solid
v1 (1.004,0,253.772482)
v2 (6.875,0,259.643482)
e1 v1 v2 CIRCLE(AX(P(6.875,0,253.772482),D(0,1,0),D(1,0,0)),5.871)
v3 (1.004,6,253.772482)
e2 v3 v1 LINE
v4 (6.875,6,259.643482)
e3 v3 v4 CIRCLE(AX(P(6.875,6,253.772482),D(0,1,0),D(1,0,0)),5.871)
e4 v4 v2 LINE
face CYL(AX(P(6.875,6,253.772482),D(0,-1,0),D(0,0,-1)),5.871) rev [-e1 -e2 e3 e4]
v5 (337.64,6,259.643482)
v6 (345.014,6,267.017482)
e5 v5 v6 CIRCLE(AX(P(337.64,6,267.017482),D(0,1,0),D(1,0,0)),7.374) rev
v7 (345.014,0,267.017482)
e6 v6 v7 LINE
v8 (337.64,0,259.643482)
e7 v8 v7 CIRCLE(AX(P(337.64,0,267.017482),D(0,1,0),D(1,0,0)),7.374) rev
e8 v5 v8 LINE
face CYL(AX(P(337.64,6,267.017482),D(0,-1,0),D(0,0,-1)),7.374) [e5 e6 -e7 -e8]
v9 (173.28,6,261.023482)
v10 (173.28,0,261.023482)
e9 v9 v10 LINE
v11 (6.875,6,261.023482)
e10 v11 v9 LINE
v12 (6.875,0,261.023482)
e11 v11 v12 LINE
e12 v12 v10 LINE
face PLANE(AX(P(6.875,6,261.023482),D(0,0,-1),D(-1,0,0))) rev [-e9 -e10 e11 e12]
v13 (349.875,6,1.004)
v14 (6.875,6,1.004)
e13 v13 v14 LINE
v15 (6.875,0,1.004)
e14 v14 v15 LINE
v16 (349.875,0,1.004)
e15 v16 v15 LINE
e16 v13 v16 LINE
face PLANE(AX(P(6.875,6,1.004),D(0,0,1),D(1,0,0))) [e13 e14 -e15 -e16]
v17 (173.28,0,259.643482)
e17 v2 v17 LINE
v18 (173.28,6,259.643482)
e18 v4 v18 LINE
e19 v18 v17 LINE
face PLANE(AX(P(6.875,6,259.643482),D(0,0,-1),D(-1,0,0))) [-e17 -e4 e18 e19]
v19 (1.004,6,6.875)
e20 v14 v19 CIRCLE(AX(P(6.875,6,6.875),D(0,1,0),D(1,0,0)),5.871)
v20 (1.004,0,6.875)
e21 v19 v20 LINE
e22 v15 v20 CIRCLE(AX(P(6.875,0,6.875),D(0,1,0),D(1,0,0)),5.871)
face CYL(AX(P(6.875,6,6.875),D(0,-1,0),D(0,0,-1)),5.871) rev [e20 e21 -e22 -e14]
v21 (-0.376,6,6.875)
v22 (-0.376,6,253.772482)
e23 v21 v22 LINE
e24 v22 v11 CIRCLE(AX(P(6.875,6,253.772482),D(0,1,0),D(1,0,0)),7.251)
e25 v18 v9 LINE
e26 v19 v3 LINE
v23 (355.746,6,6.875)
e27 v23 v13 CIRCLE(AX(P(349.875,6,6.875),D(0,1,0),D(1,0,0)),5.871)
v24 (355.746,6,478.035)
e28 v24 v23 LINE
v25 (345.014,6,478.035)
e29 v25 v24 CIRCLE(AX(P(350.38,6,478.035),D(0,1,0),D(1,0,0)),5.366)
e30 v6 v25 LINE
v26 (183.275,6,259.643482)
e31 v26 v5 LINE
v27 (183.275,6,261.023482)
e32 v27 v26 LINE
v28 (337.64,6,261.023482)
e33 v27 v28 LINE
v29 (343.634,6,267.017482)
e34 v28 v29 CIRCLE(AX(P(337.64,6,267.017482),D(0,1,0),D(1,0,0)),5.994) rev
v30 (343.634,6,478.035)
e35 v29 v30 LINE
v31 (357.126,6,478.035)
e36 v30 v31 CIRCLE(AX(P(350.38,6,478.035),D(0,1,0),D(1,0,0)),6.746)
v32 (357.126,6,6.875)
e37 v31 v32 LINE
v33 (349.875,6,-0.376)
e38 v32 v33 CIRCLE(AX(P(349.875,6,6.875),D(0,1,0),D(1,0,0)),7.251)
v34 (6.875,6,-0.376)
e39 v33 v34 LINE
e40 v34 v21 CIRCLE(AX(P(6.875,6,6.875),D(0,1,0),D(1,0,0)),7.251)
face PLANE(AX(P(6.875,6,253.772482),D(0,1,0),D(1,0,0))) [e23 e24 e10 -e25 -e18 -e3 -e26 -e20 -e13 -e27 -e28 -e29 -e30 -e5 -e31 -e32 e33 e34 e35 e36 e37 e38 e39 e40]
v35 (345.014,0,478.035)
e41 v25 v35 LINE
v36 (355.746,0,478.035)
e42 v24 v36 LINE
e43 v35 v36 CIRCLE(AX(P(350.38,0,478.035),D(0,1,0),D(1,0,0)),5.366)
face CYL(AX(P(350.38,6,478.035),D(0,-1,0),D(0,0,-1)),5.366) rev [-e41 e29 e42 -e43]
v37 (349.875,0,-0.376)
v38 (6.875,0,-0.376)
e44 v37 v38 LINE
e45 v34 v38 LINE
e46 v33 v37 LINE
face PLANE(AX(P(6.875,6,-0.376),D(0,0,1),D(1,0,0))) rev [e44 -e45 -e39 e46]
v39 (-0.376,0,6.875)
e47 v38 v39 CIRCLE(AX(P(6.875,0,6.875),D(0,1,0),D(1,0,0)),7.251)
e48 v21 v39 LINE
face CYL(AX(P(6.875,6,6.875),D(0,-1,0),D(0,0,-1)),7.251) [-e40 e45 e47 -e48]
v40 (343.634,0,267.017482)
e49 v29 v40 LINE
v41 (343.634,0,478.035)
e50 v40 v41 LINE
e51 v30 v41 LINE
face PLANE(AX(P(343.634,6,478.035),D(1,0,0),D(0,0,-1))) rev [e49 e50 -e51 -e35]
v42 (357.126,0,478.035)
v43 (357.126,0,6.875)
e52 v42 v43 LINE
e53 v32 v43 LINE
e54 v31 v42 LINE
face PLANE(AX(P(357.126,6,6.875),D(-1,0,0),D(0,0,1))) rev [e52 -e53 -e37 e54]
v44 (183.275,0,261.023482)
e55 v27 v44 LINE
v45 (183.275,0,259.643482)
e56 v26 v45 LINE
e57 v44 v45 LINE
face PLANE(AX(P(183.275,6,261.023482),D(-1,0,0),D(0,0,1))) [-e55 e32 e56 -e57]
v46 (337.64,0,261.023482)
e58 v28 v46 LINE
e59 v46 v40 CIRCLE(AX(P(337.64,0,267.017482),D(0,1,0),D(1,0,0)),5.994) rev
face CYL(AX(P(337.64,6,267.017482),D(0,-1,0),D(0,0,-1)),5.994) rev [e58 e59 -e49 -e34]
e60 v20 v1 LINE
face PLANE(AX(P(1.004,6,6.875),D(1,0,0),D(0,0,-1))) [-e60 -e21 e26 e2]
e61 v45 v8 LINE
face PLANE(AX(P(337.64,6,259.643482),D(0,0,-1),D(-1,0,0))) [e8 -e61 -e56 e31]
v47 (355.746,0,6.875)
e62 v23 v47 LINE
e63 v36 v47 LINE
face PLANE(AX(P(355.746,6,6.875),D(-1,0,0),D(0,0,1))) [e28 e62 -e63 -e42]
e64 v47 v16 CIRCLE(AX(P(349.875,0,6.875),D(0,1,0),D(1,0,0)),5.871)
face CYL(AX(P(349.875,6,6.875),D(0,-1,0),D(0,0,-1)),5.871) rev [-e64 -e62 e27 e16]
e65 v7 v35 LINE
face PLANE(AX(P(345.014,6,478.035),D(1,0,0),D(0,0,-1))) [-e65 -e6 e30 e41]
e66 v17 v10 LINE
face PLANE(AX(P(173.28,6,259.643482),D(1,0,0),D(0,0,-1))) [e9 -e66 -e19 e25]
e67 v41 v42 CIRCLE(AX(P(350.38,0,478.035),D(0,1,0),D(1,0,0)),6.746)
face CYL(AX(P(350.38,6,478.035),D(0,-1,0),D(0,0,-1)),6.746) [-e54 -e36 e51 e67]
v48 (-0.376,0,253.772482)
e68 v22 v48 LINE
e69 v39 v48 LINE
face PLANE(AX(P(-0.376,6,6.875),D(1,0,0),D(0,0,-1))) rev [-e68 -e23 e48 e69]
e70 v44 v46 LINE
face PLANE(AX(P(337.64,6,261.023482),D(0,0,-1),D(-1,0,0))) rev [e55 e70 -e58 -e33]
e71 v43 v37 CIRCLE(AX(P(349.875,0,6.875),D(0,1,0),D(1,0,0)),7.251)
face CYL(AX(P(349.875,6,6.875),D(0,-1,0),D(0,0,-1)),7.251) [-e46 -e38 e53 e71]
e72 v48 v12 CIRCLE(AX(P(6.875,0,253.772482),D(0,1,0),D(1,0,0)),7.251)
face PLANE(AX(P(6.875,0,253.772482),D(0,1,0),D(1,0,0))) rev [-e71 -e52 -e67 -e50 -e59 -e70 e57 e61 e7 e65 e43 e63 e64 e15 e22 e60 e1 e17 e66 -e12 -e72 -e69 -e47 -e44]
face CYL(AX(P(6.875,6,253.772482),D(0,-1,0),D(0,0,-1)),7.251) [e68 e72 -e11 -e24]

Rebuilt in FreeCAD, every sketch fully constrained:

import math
import FreeCAD as App
import Part
import Sketcher

doc = App.newDocument("Part")
body = doc.addObject("PartDesign::Body", "Body")

sketch1 = body.newObject("Sketcher::SketchObject", "Sketch")
sketch1.AttachmentSupport = (doc.getObject("XZ_Plane"), [""])
sketch1.MapMode = "FlatFace"
sketch1.addGeometry(Part.LineSegment(App.Vector(173.3, 259.6, 0), App.Vector(6.9, 259.6, 0)), False)
sketch1.addGeometry(Part.ArcOfCircle(Part.Circle(App.Vector(6.9, 253.8, 0), App.Vector(0, 0, 1), 5.9), math.radians(90), math.radians(180)), False)
sketch1.addGeometry(Part.LineSegment(App.Vector(1, 253.8, 0), App.Vector(1, 6.9, 0)), False)
sketch1.addGeometry(Part.ArcOfCircle(Part.Circle(App.Vector(6.9, 6.9, 0), App.Vector(0, 0, 1), 5.9), math.radians(-180), math.radians(-90)), False)
sketch1.addGeometry(Part.LineSegment(App.Vector(6.9, 1, 0), App.Vector(349.9, 1, 0)), False)
sketch1.addGeometry(Part.ArcOfCircle(Part.Circle(App.Vector(349.9, 6.9, 0), App.Vector(0, 0, 1), 5.9), math.radians(-90), math.radians(0)), False)
sketch1.addGeometry(Part.LineSegment(App.Vector(355.7, 6.9, 0), App.Vector(355.7, 478, 0)), False)
sketch1.addGeometry(Part.ArcOfCircle(Part.Circle(App.Vector(350.4, 478, 0), App.Vector(0, 0, 1), 5.4), math.radians(0), math.radians(180)), False)
sketch1.addGeometry(Part.LineSegment(App.Vector(345, 478, 0), App.Vector(345, 267, 0)), False)
sketch1.addGeometry(Part.ArcOfCircle(Part.Circle(App.Vector(337.6, 267, 0), App.Vector(0, 0, 1), 7.4), math.radians(-90), math.radians(0)), False)
sketch1.addGeometry(Part.LineSegment(App.Vector(337.6, 259.6, 0), App.Vector(183.3, 259.6, 0)), False)
sketch1.addGeometry(Part.LineSegment(App.Vector(183.3, 259.6, 0), App.Vector(183.3, 261, 0)), False)
sketch1.addGeometry(Part.LineSegment(App.Vector(183.3, 261, 0), App.Vector(337.6, 261, 0)), False)
sketch1.addGeometry(Part.ArcOfCircle(Part.Circle(App.Vector(337.6, 267, 0), App.Vector(0, 0, 1), 6), math.radians(-90), math.radians(0)), False)
sketch1.addGeometry(Part.LineSegment(App.Vector(343.6, 267, 0), App.Vector(343.6, 478, 0)), False)
sketch1.addGeometry(Part.ArcOfCircle(Part.Circle(App.Vector(350.4, 478, 0), App.Vector(0, 0, 1), 6.7), math.radians(0), math.radians(180)), False)
sketch1.addGeometry(Part.LineSegment(App.Vector(357.1, 478, 0), App.Vector(357.1, 6.9, 0)), False)
sketch1.addGeometry(Part.ArcOfCircle(Part.Circle(App.Vector(349.9, 6.9, 0), App.Vector(0, 0, 1), 7.3), math.radians(-90), math.radians(0)), False)
sketch1.addGeometry(Part.LineSegment(App.Vector(349.9, -0.4, 0), App.Vector(6.9, -0.4, 0)), False)
sketch1.addGeometry(Part.ArcOfCircle(Part.Circle(App.Vector(6.9, 6.9, 0), App.Vector(0, 0, 1), 7.3), math.radians(-180), math.radians(-90)), False)
sketch1.addGeometry(Part.LineSegment(App.Vector(-0.4, 6.9, 0), App.Vector(-0.4, 253.8, 0)), False)
sketch1.addGeometry(Part.ArcOfCircle(Part.Circle(App.Vector(6.9, 253.8, 0), App.Vector(0, 0, 1), 7.3), math.radians(90), math.radians(180)), False)
sketch1.addGeometry(Part.LineSegment(App.Vector(6.9, 261, 0), App.Vector(173.3, 261, 0)), False)
sketch1.addGeometry(Part.LineSegment(App.Vector(173.3, 261, 0), App.Vector(173.3, 259.6, 0)), False)
sketch1.addConstraint(Sketcher.Constraint("Tangent", 0, 2, 1, 1))
sketch1.addConstraint(Sketcher.Constraint("Tangent", 1, 2, 2, 1))
sketch1.addConstraint(Sketcher.Constraint("Tangent", 2, 2, 3, 1))
sketch1.addConstraint(Sketcher.Constraint("Tangent", 3, 2, 4, 1))
sketch1.addConstraint(Sketcher.Constraint("Tangent", 4, 2, 5, 1))
sketch1.addConstraint(Sketcher.Constraint("Tangent", 5, 2, 6, 1))
sketch1.addConstraint(Sketcher.Constraint("Tangent", 6, 2, 7, 1))
sketch1.addConstraint(Sketcher.Constraint("Tangent", 7, 2, 8, 1))
sketch1.addConstraint(Sketcher.Constraint("Tangent", 8, 2, 9, 2))
sketch1.addConstraint(Sketcher.Constraint("Tangent", 9, 1, 10, 1))
sketch1.addConstraint(Sketcher.Constraint("Coincident", 10, 2, 11, 1))
sketch1.addConstraint(Sketcher.Constraint("Coincident", 11, 2, 12, 1))
sketch1.addConstraint(Sketcher.Constraint("Tangent", 12, 2, 13, 1))
sketch1.addConstraint(Sketcher.Constraint("Tangent", 13, 2, 14, 1))
sketch1.addConstraint(Sketcher.Constraint("Tangent", 14, 2, 15, 2))
sketch1.addConstraint(Sketcher.Constraint("Tangent", 15, 1, 16, 1))
sketch1.addConstraint(Sketcher.Constraint("Tangent", 16, 2, 17, 2))
sketch1.addConstraint(Sketcher.Constraint("Tangent", 17, 1, 18, 1))
sketch1.addConstraint(Sketcher.Constraint("Tangent", 18, 2, 19, 2))
sketch1.addConstraint(Sketcher.Constraint("Tangent", 19, 1, 20, 1))
sketch1.addConstraint(Sketcher.Constraint("Tangent", 20, 2, 21, 2))
sketch1.addConstraint(Sketcher.Constraint("Tangent", 21, 1, 22, 1))
sketch1.addConstraint(Sketcher.Constraint("Coincident", 22, 2, 23, 1))
sketch1.addConstraint(Sketcher.Constraint("Coincident", 23, 2, 0, 1))
sketch1.addConstraint(Sketcher.Constraint("Horizontal", 0))
sketch1.addConstraint(Sketcher.Constraint("Vertical", 2))
sketch1.addConstraint(Sketcher.Constraint("Horizontal", 4))
sketch1.addConstraint(Sketcher.Constraint("Vertical", 6))
sketch1.addConstraint(Sketcher.Constraint("Vertical", 8))
sketch1.addConstraint(Sketcher.Constraint("Horizontal", 10))
sketch1.addConstraint(Sketcher.Constraint("Vertical", 11))
sketch1.addConstraint(Sketcher.Constraint("Horizontal", 12))
sketch1.addConstraint(Sketcher.Constraint("Vertical", 14))
sketch1.addConstraint(Sketcher.Constraint("Vertical", 16))
sketch1.addConstraint(Sketcher.Constraint("Horizontal", 18))
sketch1.addConstraint(Sketcher.Constraint("Vertical", 20))
sketch1.addConstraint(Sketcher.Constraint("Horizontal", 22))
sketch1.addConstraint(Sketcher.Constraint("Vertical", 23))
sketch1.addConstraint(Sketcher.Constraint("Coincident", 13, 3, 9, 3))
sketch1.addConstraint(Sketcher.Constraint("Coincident", 15, 3, 7, 3))
sketch1.addConstraint(Sketcher.Constraint("Coincident", 17, 3, 5, 3))
sketch1.addConstraint(Sketcher.Constraint("Coincident", 19, 3, 3, 3))
sketch1.addConstraint(Sketcher.Constraint("Coincident", 21, 3, 1, 3))
sketch1.addConstraint(Sketcher.Constraint("Equal", 1, 3))
sketch1.addConstraint(Sketcher.Constraint("Equal", 3, 5))
sketch1.addConstraint(Sketcher.Constraint("Horizontal", 0, 2, 9, 1))
sketch1.addConstraint(Sketcher.Constraint("DistanceX", 4, 1, 4, 2, 343.0))
sketch1.addConstraint(Sketcher.Constraint("Radius", 1, 5.871))
sketch1.addConstraint(Sketcher.Constraint("Radius", 7, 5.366))
sketch1.addConstraint(Sketcher.Constraint("Radius", 9, 7.374))
sketch1.addConstraint(Sketcher.Constraint("Radius", 13, 5.994))
sketch1.addConstraint(Sketcher.Constraint("DistanceY", 6, 1, 6, 2, 471.16))
sketch1.addConstraint(Sketcher.Constraint("DistanceX", 0, 2, 10, 2, 176.4))
sketch1.addConstraint(Sketcher.Constraint("DistanceX", 0, 2, 0, 1, 166.405))
sketch1.addConstraint(Sketcher.Constraint("DistanceX", -1, 1, 7, 3, 350.38))
sketch1.addConstraint(Sketcher.Constraint("DistanceY", -1, 1, 3, 3, 6.875))
sketch1.addConstraint(Sketcher.Constraint("DistanceY", 2, 2, 2, 1, 246.897482))
pad1 = body.newObject("PartDesign::Pad", "Pad")
pad1.Profile = sketch1
pad1.Length = 6
pad1.Reversed = True

doc.recompute()
